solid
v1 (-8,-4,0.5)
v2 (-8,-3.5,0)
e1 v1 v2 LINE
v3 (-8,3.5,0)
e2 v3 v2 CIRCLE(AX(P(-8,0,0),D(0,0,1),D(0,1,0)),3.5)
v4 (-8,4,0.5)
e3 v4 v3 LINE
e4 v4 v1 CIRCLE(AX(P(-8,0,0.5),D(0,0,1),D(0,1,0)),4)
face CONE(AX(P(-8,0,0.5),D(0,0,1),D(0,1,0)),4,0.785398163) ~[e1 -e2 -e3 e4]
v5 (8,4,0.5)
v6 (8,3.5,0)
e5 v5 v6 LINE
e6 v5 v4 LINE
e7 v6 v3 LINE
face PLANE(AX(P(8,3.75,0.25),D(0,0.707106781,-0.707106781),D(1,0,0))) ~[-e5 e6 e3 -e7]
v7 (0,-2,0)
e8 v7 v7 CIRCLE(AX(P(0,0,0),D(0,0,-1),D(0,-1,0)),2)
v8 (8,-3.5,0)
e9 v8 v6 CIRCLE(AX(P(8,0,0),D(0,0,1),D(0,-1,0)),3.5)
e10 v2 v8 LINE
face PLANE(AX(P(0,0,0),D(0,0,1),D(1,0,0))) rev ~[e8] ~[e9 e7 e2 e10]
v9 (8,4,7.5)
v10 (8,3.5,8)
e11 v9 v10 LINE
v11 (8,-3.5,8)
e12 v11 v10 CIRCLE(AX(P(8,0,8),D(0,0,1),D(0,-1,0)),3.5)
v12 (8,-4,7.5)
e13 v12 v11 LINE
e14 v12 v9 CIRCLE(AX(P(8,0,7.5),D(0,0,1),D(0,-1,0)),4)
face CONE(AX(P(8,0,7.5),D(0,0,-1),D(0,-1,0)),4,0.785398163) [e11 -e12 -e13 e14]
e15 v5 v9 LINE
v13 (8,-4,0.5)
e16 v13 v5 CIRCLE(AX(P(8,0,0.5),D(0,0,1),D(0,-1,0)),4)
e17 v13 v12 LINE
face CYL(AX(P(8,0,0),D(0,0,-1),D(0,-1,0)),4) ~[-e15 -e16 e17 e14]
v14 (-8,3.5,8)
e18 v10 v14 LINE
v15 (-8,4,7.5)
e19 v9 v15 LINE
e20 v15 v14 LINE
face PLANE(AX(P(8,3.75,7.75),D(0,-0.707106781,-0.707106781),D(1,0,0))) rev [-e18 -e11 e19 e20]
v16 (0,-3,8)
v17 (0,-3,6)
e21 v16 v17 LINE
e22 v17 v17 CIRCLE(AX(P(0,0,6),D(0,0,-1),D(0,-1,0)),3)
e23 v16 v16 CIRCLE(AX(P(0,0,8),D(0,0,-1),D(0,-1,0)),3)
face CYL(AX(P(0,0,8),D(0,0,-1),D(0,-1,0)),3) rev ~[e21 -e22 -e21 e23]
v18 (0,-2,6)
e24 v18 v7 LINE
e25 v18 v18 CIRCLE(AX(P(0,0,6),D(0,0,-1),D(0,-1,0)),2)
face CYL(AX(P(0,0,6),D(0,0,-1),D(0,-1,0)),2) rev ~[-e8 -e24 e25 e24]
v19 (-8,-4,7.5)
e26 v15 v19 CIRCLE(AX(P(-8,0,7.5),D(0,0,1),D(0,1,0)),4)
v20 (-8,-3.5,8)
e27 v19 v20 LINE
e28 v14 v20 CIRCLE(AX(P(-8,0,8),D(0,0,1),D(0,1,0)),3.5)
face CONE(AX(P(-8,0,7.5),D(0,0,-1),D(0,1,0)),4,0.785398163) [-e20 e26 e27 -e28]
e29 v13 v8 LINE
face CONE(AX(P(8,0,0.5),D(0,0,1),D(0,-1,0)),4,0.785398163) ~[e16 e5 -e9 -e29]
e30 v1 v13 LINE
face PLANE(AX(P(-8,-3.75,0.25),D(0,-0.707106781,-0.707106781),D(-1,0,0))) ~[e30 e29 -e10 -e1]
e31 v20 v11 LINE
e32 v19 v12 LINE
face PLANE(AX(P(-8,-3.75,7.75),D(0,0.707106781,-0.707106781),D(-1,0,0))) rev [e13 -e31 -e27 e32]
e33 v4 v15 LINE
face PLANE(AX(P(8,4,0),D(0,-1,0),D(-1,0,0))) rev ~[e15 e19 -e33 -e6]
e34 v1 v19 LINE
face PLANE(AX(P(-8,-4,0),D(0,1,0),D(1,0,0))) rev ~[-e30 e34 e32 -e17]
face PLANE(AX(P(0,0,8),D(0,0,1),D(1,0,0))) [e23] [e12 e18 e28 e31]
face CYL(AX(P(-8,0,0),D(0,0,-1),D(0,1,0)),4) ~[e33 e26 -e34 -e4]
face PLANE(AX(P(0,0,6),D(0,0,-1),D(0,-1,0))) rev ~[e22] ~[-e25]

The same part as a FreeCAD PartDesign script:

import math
import FreeCAD as App
import Part
import Sketcher
from FreeCAD import Vector


def edges_at(feature, points):
    """Names of the edges that pass closest to the given points."""
    edges = feature.Shape.Edges
    near = lambda p: min(range(len(edges)), key=lambda i: edges[i].distToShape(Part.Vertex(*p))[0])
    return sorted({f"Edge{near(p) + 1}" for p in points})

doc = App.newDocument("Part")
body = doc.addObject("PartDesign::Body", "Body")

sketch1 = body.newObject("Sketcher::SketchObject", "Sketch")
sketch1.AttachmentSupport = (doc.getObject("XY_Plane"), [""])
sketch1.MapMode = "FlatFace"
sketch1.addGeometry([
    Part.ArcOfCircle(Part.Circle(Vector(-8, 0, 0), Vector(0, 0, 1), 4), math.radians(90), math.radians(270)),
    Part.LineSegment(Vector(-8, -4, 0), Vector(8, -4, 0)),
    Part.ArcOfCircle(Part.Circle(Vector(8, 0, 0), Vector(0, 0, 1), 4), math.radians(-90), math.radians(90)),
    Part.LineSegment(Vector(8, 4, 0), Vector(-8, 4, 0)),
], False)
sketch1.addConstraint([
    Sketcher.Constraint("Tangent", 0, 2, 1, 1),
    Sketcher.Constraint("Tangent", 1, 2, 2, 1),
    Sketcher.Constraint("Tangent", 2, 2, 3, 1),
    Sketcher.Constraint("Tangent", 3, 2, 0, 1),
    Sketcher.Constraint("Horizontal", 1),
    Sketcher.Constraint("Horizontal", 3),
    Sketcher.Constraint("Symmetric", 0, 3, 2, 3, -1, 1),
    Sketcher.Constraint("Radius", 0, 4.0),
    Sketcher.Constraint("DistanceX", 1, 1, 1, 2, 16.0),
])
pad1 = body.newObject("PartDesign::Pad", "Pad")
pad1.Profile = sketch1
pad1.Length = 8
doc.recompute()

chamfer = body.newObject("PartDesign::Chamfer", "Chamfer")
chamfer.Base = (pad1, edges_at(pad1, [
    (0, 4, 8),
    (-12, 0, 8),
    (0, -4, 8),
    (12, 0, 8),
    (0, 4, 0),
    (-12, 0, 0),
    (0, -4, 0),
    (12, 0, 0),
]))
chamfer.Size = 0.5

sketch2 = body.newObject("Sketcher::SketchObject", "Sketch001")
sketch2.AttachmentSupport = (doc.getObject("XY_Plane"), [""])
sketch2.MapMode = "FlatFace"
sketch2.AttachmentOffset = App.Placement(Vector(0, 0, 8), App.Rotation())
sketch2.addGeometry(Part.Circle(Vector(0, 0, 0), Vector(0, 0, 1), 2), False)
sketch2.addConstraint([
    Sketcher.Constraint("Coincident", 0, 3, -1, 1),
    Sketcher.Constraint("Diameter", 0, 4.0),
])
doc.recompute()
hole = body.newObject("PartDesign::Hole", "Hole")
hole.Profile = sketch2
hole.ThreadType = "None"
hole.Diameter = 4
hole.DepthType = "ThroughAll"
hole.HoleCutType = "Counterbore"
hole.HoleCutDiameter = 6
hole.HoleCutDepth = 2

doc.recompute()
